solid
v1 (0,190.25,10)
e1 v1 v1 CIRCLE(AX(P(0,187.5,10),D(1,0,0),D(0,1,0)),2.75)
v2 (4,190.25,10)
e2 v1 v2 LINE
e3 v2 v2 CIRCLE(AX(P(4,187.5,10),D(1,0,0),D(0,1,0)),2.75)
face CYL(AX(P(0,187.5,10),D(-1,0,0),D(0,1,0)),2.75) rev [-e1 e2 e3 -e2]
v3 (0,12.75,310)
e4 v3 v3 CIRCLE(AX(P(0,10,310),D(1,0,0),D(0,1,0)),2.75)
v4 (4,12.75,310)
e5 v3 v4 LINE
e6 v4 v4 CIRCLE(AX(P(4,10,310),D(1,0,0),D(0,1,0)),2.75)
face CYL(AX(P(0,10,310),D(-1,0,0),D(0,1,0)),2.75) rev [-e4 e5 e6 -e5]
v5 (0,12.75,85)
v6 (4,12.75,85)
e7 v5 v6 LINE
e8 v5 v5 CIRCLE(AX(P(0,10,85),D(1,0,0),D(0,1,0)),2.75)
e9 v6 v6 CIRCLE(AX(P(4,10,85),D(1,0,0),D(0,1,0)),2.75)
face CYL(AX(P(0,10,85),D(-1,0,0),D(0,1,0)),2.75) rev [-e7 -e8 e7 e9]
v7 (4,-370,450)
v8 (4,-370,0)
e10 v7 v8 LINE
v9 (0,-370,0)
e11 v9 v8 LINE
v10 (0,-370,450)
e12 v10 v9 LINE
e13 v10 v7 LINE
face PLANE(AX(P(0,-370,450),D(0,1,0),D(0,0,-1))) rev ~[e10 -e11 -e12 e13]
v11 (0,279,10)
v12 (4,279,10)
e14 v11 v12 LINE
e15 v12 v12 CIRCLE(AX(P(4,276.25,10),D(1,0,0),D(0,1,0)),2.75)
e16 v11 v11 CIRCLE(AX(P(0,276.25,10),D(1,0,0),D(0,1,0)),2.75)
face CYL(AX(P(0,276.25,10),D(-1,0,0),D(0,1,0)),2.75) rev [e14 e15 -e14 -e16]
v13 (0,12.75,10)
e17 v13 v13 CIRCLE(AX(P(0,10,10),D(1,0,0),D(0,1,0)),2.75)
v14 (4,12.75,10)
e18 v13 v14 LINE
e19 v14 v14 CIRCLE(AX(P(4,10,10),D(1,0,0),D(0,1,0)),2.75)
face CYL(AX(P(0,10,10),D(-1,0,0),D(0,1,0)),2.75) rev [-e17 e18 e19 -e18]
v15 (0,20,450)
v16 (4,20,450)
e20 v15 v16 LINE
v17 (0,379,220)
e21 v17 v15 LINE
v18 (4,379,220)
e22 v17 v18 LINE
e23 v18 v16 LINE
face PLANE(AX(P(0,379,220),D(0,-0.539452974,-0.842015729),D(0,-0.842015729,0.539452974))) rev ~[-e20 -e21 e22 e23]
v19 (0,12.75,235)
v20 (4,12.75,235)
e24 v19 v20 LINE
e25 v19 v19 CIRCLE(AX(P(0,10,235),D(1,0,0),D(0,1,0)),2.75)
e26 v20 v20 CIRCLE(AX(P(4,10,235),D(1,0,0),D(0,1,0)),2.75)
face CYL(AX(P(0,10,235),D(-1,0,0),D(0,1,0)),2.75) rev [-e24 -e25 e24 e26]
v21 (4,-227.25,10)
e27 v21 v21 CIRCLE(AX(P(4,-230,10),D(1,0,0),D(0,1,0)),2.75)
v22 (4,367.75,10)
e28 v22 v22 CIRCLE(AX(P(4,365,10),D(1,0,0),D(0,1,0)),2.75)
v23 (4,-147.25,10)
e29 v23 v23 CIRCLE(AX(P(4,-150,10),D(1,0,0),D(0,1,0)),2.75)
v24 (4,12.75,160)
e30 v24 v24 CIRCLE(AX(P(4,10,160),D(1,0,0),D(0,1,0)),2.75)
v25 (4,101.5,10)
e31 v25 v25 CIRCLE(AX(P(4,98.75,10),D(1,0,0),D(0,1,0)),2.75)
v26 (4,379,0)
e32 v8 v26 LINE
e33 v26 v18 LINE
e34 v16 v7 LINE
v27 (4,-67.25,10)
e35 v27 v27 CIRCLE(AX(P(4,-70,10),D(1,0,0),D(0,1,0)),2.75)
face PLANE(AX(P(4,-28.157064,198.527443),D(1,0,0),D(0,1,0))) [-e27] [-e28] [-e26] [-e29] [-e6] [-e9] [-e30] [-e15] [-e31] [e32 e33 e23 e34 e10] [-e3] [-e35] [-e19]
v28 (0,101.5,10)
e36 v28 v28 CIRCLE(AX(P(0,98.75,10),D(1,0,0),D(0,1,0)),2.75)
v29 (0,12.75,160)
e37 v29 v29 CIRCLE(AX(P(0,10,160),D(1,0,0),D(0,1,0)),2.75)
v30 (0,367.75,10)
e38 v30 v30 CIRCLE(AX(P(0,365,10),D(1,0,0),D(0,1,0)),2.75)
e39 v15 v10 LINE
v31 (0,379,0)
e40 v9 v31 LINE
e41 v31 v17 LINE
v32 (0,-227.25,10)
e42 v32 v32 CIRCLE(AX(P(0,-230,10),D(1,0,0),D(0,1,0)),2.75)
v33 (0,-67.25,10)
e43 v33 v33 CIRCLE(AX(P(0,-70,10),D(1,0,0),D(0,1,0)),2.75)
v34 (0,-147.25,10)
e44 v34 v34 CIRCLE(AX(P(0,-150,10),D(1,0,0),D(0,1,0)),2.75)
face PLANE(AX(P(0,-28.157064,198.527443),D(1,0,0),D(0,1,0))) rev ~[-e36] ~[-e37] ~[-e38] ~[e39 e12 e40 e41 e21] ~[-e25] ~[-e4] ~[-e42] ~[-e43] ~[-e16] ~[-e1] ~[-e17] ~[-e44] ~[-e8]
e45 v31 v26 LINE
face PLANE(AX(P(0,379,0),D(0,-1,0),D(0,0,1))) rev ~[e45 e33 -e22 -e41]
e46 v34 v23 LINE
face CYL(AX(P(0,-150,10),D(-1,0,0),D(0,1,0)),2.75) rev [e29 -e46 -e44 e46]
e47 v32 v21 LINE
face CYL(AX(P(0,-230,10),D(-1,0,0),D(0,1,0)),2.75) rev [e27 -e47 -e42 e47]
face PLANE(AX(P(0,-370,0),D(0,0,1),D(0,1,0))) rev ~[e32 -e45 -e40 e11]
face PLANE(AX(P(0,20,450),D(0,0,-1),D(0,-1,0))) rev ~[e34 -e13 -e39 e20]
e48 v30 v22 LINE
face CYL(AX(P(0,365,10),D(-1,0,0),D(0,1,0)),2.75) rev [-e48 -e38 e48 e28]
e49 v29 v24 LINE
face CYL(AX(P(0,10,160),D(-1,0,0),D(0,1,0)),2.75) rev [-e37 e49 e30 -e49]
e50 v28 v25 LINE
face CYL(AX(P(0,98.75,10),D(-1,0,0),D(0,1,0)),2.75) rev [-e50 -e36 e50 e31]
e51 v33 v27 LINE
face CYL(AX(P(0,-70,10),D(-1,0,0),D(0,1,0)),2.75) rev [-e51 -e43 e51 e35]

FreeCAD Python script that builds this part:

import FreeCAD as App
import Part
import Sketcher
from FreeCAD import Vector
Q = App.Units.Quantity


def add_polygon(sketch, points):
    """Adds a closed chain of lines whose ends are joined by coincident constraints."""
    first, n = sketch.GeometryCount, len(points)
    for a, b in zip(points, points[1:] + points[:1]):
        sketch.addGeometry(Part.LineSegment(App.Vector(*a, 0), App.Vector(*b, 0)), False)
    for i in range(n):
        sketch.addConstraint(Sketcher.Constraint("Coincident", first + i, 2, first + (i + 1) % n, 1))

doc = App.newDocument("Part")
params = doc.addObject("Spreadsheet::Sheet", "Params")
for row, (alias, value) in enumerate([
    ("sketch1_diameter", "5.5 mm"),
    ("sketch1_width", "390 mm"),
    ("sketch1_width2", "749 mm"),
    ("sketch1_height", "220 mm"),
    ("sketch1_height2", "450 mm"),
    ("pad1_length", "4 mm"),
], start=1):
    params.set(f"A{row}", alias)
    params.set(f"B{row}", "=" + value)
    params.setAlias(f"B{row}", alias)

body = doc.addObject("PartDesign::Body", "Body")

# Sketch on YZ plane
sketch1 = body.newObject("Sketcher::SketchObject", "Sketch")
sketch1.AttachmentSupport = (doc.getObject("YZ_Plane"), [""])
sketch1.MapMode = "FlatFace"
add_polygon(sketch1, [(379, 0), (379, 220), (20, 450), (-370, 450), (-370, 0)])  # lines 0-4
sketch1.addGeometry(Part.Circle(Vector(-230, 10, 0), Vector(0, 0, 1), 2.75), False)  # 5
sketch1.addGeometry(Part.Circle(Vector(-150, 10, 0), Vector(0, 0, 1), 2.75), False)  # 6
sketch1.addGeometry(Part.Circle(Vector(-70, 10, 0), Vector(0, 0, 1), 2.75), False)  # 7
sketch1.addGeometry(Part.Circle(Vector(10, 10, 0), Vector(0, 0, 1), 2.75), False)  # 8
sketch1.addGeometry(Part.Circle(Vector(10, 85, 0), Vector(0, 0, 1), 2.75), False)  # 9
sketch1.addGeometry(Part.Circle(Vector(98.75, 10, 0), Vector(0, 0, 1), 2.75), False)  # 10
sketch1.addGeometry(Part.Circle(Vector(187.5, 10, 0), Vector(0, 0, 1), 2.75), False)  # 11
sketch1.addGeometry(Part.Circle(Vector(276.25, 10, 0), Vector(0, 0, 1), 2.75), False)  # 12
sketch1.addGeometry(Part.Circle(Vector(365, 10, 0), Vector(0, 0, 1), 2.75), False)  # 13
sketch1.addGeometry(Part.Circle(Vector(10, 160, 0), Vector(0, 0, 1), 2.75), False)  # 14
sketch1.addGeometry(Part.Circle(Vector(10, 235, 0), Vector(0, 0, 1), 2.75), False)  # 15
sketch1.addGeometry(Part.Circle(Vector(10, 310, 0), Vector(0, 0, 1), 2.75), False)  # 16
sketch1.addConstraint([
    Sketcher.Constraint("Vertical", 0),
    Sketcher.Constraint("Horizontal", 2),
    Sketcher.Constraint("Vertical", 3),
    Sketcher.Constraint("Horizontal", 4),
    Sketcher.Constraint("Equal", 5, 6),
    Sketcher.Constraint("Equal", 6, 7),
    Sketcher.Constraint("Equal", 7, 8),
    Sketcher.Constraint("Equal", 8, 9),
    Sketcher.Constraint("Equal", 9, 10),
    Sketcher.Constraint("Equal", 10, 11),
    Sketcher.Constraint("Equal", 11, 12),
    Sketcher.Constraint("Equal", 12, 13),
    Sketcher.Constraint("Equal", 13, 14),
    Sketcher.Constraint("Equal", 14, 15),
    Sketcher.Constraint("Equal", 15, 16),
    Sketcher.Constraint("PointOnObject", 3, 2, -1),
    Sketcher.Constraint("Horizontal", 5, 3, 6, 3),
    Sketcher.Constraint("Horizontal", 6, 3, 7, 3),
    Sketcher.Constraint("Horizontal", 7, 3, 8, 3),
    Sketcher.Constraint("Horizontal", 8, 3, 10, 3),
    Sketcher.Constraint("Horizontal", 10, 3, 11, 3),
    Sketcher.Constraint("Horizontal", 11, 3, 12, 3),
    Sketcher.Constraint("Horizontal", 12, 3, 13, 3),
    Sketcher.Constraint("Vertical", 8, 3, 9, 3),
    Sketcher.Constraint("Vertical", 9, 3, 14, 3),
    Sketcher.Constraint("Vertical", 14, 3, 15, 3),
    Sketcher.Constraint("Vertical", 15, 3, 16, 3),
    Sketcher.Constraint("Diameter", 5, Q("5.5 mm")),
    Sketcher.Constraint("DistanceX", 2, 2, 2, 1, Q("390 mm")),
    Sketcher.Constraint("DistanceX", 4, 1, 4, 2, Q("749 mm")),
    Sketcher.Constraint("DistanceY", 0, 1, 0, 2, Q("220 mm")),
    Sketcher.Constraint("DistanceY", 3, 2, 3, 1, Q("450 mm")),
    Sketcher.Constraint("DistanceX", 5, 3, -1, 1, Q("230 mm")),
    Sketcher.Constraint("DistanceY", -1, 1, 5, 3, Q("10 mm")),
    Sketcher.Constraint("DistanceX", 6, 3, -1, 1, Q("150 mm")),
    Sketcher.Constraint("DistanceX", 7, 3, -1, 1, Q("70 mm")),
    Sketcher.Constraint("DistanceX", -1, 1, 8, 3, Q("10 mm")),
    Sketcher.Constraint("DistanceY", -1, 1, 9, 3, Q("85 mm")),
    Sketcher.Constraint("DistanceX", -1, 1, 13, 3, Q("365 mm")),
    Sketcher.Constraint("DistanceY", -1, 1, 14, 3, Q("160 mm")),
    Sketcher.Constraint("DistanceY", -1, 1, 15, 3, Q("235 mm")),
    Sketcher.Constraint("DistanceY", -1, 1, 16, 3, Q("310 mm")),
    Sketcher.Constraint("DistanceX", -1, 1, 0, 2, Q("379 mm")),
    Sketcher.Constraint("DistanceX", -1, 1, 11, 3, Q("187.5 mm")),
    Sketcher.Constraint("DistanceX", 10, 3, 12, 3, Q("177.5 mm")),
    Sketcher.Constraint("DistanceX", -1, 1, 10, 3, Q("98.75 mm")),
])
sketch1.setExpression("Constraints[32]", "Params.sketch1_diameter")
sketch1.setExpression("Constraints[33]", "Params.sketch1_width")
sketch1.setExpression("Constraints[34]", "Params.sketch1_width2")
sketch1.setExpression("Constraints[35]", "Params.sketch1_height")
sketch1.setExpression("Constraints[36]", "Params.sketch1_height2")
pad1 = body.newObject("PartDesign::Pad", "Pad")
pad1.Profile = sketch1
pad1.setExpression("Length", "Params.pad1_length")

doc.recompute()
